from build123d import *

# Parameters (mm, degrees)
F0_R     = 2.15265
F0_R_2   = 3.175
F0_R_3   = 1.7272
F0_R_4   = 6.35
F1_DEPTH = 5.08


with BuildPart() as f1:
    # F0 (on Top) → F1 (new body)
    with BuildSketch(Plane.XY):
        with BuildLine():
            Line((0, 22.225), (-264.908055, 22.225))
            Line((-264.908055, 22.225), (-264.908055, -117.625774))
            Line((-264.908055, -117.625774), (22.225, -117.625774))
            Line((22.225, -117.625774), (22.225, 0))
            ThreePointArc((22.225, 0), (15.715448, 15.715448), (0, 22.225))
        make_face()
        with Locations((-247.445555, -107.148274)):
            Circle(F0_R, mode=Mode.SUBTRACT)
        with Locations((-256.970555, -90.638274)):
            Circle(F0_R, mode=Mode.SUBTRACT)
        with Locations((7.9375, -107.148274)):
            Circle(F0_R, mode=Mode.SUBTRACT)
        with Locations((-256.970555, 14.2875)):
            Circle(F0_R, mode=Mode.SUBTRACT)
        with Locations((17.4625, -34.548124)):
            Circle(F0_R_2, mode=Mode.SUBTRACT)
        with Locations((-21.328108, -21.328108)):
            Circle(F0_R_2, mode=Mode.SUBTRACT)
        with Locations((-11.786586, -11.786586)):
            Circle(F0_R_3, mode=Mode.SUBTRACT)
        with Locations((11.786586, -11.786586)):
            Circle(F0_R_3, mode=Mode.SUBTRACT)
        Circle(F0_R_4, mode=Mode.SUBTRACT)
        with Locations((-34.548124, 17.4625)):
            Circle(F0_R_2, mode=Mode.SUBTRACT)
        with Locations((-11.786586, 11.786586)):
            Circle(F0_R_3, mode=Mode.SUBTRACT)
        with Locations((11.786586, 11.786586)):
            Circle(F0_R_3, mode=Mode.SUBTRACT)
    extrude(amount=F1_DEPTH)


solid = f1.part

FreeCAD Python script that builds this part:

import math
import FreeCAD as App
import Part
import Sketcher

V = App.Vector
Q = App.Units.Quantity

doc = App.newDocument("Part")
body = doc.addObject("PartDesign::Body", "Body")

# Sketch on XY plane
sketch1 = doc.addObject("Sketcher::SketchObject", "Sketch")
body.addObject(sketch1)
sketch1.AttachmentSupport = (doc.XY_Plane, [""])
sketch1.MapMode = "FlatFace"
sketch1.addGeometry([
    Part.LineSegment(V(0, 22.2, 0), V(-264.9, 22.2, 0)),  # 0
    Part.LineSegment(V(-264.9, 22.2, 0), V(-264.9, -117.6, 0)),  # 1
    Part.LineSegment(V(-264.9, -117.6, 0), V(22.2, -117.6, 0)),  # 2
    Part.LineSegment(V(22.2, -117.6, 0), V(22.2, 0, 0)),  # 3
    Part.ArcOfCircle(Part.Circle(V(0, 0, 0), V(0, 0, 1), 22.2), math.radians(0), math.radians(90)),  # 4
    Part.Circle(V(-247.4, -107.1, 0), V(0, 0, 1), 2.2),  # 5
    Part.Circle(V(-257, -90.6, 0), V(0, 0, 1), 2.2),  # 6
    Part.Circle(V(7.9, -107.1, 0), V(0, 0, 1), 2.2),  # 7
    Part.Circle(V(-257, 14.3, 0), V(0, 0, 1), 2.2),  # 8
    Part.Circle(V(17.5, -34.5, 0), V(0, 0, 1), 3.2),  # 9
    Part.Circle(V(-21.3, -21.3, 0), V(0, 0, 1), 3.2),  # 10
    Part.Circle(V(-11.8, -11.8, 0), V(0, 0, 1), 1.7),  # 11
    Part.Circle(V(11.8, -11.8, 0), V(0, 0, 1), 1.7),  # 12
    Part.Circle(V(0, 0, 0), V(0, 0, 1), 6.3),  # 13
    Part.Circle(V(-34.5, 17.5, 0), V(0, 0, 1), 3.2),  # 14
    Part.Circle(V(-11.8, 11.8, 0), V(0, 0, 1), 1.7),  # 15
    Part.Circle(V(11.8, 11.8, 0), V(0, 0, 1), 1.7),  # 16
], False)
sketch1.addConstraint([
    Sketcher.Constraint("Coincident", 0, 2, 1, 1),
    Sketcher.Constraint("Coincident", 1, 2, 2, 1),
    Sketcher.Constraint("Coincident", 2, 2, 3, 1),
    Sketcher.Constraint("Tangent", 3, 2, 4, 1),
    Sketcher.Constraint("Tangent", 4, 2, 0, 1),
    Sketcher.Constraint("Horizontal", 0),
    Sketcher.Constraint("Vertical", 1),
    Sketcher.Constraint("Horizontal", 2),
    Sketcher.Constraint("Vertical", 3),
    Sketcher.Constraint("Coincident", 4, 3, -1, 1),
    Sketcher.Constraint("Coincident", 13, 3, -1, 1),
    Sketcher.Constraint("Equal", 5, 6),
    Sketcher.Constraint("Equal", 6, 7),
    Sketcher.Constraint("Equal", 7, 8),
    Sketcher.Constraint("Equal", 9, 10),
    Sketcher.Constraint("Equal", 11, 12),
    Sketcher.Constraint("Equal", 10, 14),
    Sketcher.Constraint("Equal", 12, 15),
    Sketcher.Constraint("Equal", 15, 16),
    Sketcher.Constraint("Symmetric", 12, 3, 15, 3, -1, 1),
    Sketcher.Constraint("Symmetric", 11, 3, 16, 3, -1, 1),
    Sketcher.Constraint("Symmetric", 11, 3, 12, 3, -2),
    Sketcher.Constraint("Horizontal", 5, 3, 7, 3),
    Sketcher.Constraint("Vertical", 6, 3, 8, 3),
    Sketcher.Constraint("Diameter", 13, Q("0.5 in")),
    Sketcher.Constraint("Diameter", 9, Q("0.25 in")),
    Sketcher.Constraint("Diameter", 11, Q("0.136 in")),
    Sketcher.Constraint("Radius", 4, Q("0.875 in")),
    Sketcher.Constraint("Diameter", 5, Q("0.1695 in")),
    Sketcher.Constraint("DistanceY", 5, 3, 6, 3, Q("0.65 in")),
    Sketcher.Constraint("DistanceX", -1, 1, 7, 3, Q("0.3125 in")),
    Sketcher.Constraint("DistanceY", -1, 1, 8, 3, Q("0.5625 in")),
    Sketcher.Constraint("DistanceX", -1, 1, 9, 3, Q("0.6875 in")),
    Sketcher.Constraint("DistanceY", -1, 1, 14, 3, Q("0.6875 in")),
    Sketcher.Constraint("DistanceX", 6, 3, 5, 3, Q("0.375 in")),
    Sketcher.Constraint("DistanceX", 0, 2, 8, 3, Q("0.3125 in")),
    Sketcher.Constraint("DistanceY", 1, 2, 6, 3, Q("1.0625 in")),
    Sketcher.Constraint("DistanceX", 0, 2, 0, 1, Q("264.908055 mm")),
    Sketcher.Constraint("DistanceY", 1, 2, 1, 1, Q("139.850774 mm")),
    Sketcher.Constraint("DistanceX", 10, 3, -1, 1, Q("21.328108 mm")),
    Sketcher.Constraint("DistanceY", 10, 3, -1, 1, Q("21.328108 mm")),
    Sketcher.Constraint("DistanceY", 7, 3, 9, 3, Q("72.60015 mm")),
    Sketcher.Constraint("DistanceY", 9, 3, 11, 3, Q("22.761538 mm")),
    Sketcher.Constraint("DistanceX", 8, 3, 11, 3, Q("245.183969 mm")),
    Sketcher.Constraint("DistanceX", 14, 3, 11, 3, Q("22.761538 mm")),
])
pad1 = doc.addObject("PartDesign::Pad", "Pad")
body.addObject(pad1)
pad1.Profile = sketch1
pad1.Length = Q("0.2 in")

doc.recompute()
